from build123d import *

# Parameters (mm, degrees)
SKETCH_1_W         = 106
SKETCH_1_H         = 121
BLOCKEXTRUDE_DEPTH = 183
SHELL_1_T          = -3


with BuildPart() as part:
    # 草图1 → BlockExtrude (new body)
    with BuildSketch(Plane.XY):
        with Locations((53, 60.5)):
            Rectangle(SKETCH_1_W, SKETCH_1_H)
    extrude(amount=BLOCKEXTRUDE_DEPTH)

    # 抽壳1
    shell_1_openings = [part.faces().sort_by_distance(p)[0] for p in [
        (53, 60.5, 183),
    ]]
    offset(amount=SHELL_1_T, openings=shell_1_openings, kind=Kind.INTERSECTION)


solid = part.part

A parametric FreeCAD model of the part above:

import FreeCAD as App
import Part
import Sketcher
from FreeCAD import Vector
Q = App.Units.Quantity


def faces_at(feature, points):
    """Names of the faces that lie closest to the given points."""
    faces = feature.Shape.Faces
    near = lambda p: min(range(len(faces)), key=lambda i: faces[i].distToShape(Part.Vertex(*p))[0])
    return sorted({f"Face{near(p) + 1}" for p in points})


def add_polygon(sketch, points):
    """Adds a closed chain of lines whose ends are joined by coincident constraints."""
    first, n = sketch.GeometryCount, len(points)
    for a, b in zip(points, points[1:] + points[:1]):
        sketch.addGeometry(Part.LineSegment(App.Vector(*a, 0), App.Vector(*b, 0)), False)
    for i in range(n):
        sketch.addConstraint(Sketcher.Constraint("Coincident", first + i, 2, first + (i + 1) % n, 1))

doc = App.newDocument("Part")
body = doc.addObject("PartDesign::Body", "Body")

# Sketch on XY plane
sketch1 = body.newObject("Sketcher::SketchObject", "Sketch")
sketch1.AttachmentSupport = (doc.getObject("XY_Plane"), [""])
sketch1.MapMode = "FlatFace"
add_polygon(sketch1, [(0, 121), (0, 0), (106, 0), (106, 121)])  # lines 0-3
sketch1.addConstraint([
    Sketcher.Constraint("Vertical", 0),
    Sketcher.Constraint("Horizontal", 1),
    Sketcher.Constraint("Vertical", 2),
    Sketcher.Constraint("Horizontal", 3),
    Sketcher.Constraint("Coincident", 0, 2, -1, 1),
    Sketcher.Constraint("DistanceX", 1, 1, 1, 2, Q("106 mm")),
    Sketcher.Constraint("DistanceY", 0, 2, 0, 1, Q("121 mm")),
])
pad1 = body.newObject("PartDesign::Pad", "Pad")
pad1.Profile = sketch1
pad1.Length = 183
doc.recompute()

thickness = body.newObject("PartDesign::Thickness", "Thickness")
thickness.Base = (pad1, faces_at(pad1, [(53, 60.5, 183)]))
thickness.Value = 3
thickness.Reversed = True
thickness.Join = "Intersection"

doc.recompute()
